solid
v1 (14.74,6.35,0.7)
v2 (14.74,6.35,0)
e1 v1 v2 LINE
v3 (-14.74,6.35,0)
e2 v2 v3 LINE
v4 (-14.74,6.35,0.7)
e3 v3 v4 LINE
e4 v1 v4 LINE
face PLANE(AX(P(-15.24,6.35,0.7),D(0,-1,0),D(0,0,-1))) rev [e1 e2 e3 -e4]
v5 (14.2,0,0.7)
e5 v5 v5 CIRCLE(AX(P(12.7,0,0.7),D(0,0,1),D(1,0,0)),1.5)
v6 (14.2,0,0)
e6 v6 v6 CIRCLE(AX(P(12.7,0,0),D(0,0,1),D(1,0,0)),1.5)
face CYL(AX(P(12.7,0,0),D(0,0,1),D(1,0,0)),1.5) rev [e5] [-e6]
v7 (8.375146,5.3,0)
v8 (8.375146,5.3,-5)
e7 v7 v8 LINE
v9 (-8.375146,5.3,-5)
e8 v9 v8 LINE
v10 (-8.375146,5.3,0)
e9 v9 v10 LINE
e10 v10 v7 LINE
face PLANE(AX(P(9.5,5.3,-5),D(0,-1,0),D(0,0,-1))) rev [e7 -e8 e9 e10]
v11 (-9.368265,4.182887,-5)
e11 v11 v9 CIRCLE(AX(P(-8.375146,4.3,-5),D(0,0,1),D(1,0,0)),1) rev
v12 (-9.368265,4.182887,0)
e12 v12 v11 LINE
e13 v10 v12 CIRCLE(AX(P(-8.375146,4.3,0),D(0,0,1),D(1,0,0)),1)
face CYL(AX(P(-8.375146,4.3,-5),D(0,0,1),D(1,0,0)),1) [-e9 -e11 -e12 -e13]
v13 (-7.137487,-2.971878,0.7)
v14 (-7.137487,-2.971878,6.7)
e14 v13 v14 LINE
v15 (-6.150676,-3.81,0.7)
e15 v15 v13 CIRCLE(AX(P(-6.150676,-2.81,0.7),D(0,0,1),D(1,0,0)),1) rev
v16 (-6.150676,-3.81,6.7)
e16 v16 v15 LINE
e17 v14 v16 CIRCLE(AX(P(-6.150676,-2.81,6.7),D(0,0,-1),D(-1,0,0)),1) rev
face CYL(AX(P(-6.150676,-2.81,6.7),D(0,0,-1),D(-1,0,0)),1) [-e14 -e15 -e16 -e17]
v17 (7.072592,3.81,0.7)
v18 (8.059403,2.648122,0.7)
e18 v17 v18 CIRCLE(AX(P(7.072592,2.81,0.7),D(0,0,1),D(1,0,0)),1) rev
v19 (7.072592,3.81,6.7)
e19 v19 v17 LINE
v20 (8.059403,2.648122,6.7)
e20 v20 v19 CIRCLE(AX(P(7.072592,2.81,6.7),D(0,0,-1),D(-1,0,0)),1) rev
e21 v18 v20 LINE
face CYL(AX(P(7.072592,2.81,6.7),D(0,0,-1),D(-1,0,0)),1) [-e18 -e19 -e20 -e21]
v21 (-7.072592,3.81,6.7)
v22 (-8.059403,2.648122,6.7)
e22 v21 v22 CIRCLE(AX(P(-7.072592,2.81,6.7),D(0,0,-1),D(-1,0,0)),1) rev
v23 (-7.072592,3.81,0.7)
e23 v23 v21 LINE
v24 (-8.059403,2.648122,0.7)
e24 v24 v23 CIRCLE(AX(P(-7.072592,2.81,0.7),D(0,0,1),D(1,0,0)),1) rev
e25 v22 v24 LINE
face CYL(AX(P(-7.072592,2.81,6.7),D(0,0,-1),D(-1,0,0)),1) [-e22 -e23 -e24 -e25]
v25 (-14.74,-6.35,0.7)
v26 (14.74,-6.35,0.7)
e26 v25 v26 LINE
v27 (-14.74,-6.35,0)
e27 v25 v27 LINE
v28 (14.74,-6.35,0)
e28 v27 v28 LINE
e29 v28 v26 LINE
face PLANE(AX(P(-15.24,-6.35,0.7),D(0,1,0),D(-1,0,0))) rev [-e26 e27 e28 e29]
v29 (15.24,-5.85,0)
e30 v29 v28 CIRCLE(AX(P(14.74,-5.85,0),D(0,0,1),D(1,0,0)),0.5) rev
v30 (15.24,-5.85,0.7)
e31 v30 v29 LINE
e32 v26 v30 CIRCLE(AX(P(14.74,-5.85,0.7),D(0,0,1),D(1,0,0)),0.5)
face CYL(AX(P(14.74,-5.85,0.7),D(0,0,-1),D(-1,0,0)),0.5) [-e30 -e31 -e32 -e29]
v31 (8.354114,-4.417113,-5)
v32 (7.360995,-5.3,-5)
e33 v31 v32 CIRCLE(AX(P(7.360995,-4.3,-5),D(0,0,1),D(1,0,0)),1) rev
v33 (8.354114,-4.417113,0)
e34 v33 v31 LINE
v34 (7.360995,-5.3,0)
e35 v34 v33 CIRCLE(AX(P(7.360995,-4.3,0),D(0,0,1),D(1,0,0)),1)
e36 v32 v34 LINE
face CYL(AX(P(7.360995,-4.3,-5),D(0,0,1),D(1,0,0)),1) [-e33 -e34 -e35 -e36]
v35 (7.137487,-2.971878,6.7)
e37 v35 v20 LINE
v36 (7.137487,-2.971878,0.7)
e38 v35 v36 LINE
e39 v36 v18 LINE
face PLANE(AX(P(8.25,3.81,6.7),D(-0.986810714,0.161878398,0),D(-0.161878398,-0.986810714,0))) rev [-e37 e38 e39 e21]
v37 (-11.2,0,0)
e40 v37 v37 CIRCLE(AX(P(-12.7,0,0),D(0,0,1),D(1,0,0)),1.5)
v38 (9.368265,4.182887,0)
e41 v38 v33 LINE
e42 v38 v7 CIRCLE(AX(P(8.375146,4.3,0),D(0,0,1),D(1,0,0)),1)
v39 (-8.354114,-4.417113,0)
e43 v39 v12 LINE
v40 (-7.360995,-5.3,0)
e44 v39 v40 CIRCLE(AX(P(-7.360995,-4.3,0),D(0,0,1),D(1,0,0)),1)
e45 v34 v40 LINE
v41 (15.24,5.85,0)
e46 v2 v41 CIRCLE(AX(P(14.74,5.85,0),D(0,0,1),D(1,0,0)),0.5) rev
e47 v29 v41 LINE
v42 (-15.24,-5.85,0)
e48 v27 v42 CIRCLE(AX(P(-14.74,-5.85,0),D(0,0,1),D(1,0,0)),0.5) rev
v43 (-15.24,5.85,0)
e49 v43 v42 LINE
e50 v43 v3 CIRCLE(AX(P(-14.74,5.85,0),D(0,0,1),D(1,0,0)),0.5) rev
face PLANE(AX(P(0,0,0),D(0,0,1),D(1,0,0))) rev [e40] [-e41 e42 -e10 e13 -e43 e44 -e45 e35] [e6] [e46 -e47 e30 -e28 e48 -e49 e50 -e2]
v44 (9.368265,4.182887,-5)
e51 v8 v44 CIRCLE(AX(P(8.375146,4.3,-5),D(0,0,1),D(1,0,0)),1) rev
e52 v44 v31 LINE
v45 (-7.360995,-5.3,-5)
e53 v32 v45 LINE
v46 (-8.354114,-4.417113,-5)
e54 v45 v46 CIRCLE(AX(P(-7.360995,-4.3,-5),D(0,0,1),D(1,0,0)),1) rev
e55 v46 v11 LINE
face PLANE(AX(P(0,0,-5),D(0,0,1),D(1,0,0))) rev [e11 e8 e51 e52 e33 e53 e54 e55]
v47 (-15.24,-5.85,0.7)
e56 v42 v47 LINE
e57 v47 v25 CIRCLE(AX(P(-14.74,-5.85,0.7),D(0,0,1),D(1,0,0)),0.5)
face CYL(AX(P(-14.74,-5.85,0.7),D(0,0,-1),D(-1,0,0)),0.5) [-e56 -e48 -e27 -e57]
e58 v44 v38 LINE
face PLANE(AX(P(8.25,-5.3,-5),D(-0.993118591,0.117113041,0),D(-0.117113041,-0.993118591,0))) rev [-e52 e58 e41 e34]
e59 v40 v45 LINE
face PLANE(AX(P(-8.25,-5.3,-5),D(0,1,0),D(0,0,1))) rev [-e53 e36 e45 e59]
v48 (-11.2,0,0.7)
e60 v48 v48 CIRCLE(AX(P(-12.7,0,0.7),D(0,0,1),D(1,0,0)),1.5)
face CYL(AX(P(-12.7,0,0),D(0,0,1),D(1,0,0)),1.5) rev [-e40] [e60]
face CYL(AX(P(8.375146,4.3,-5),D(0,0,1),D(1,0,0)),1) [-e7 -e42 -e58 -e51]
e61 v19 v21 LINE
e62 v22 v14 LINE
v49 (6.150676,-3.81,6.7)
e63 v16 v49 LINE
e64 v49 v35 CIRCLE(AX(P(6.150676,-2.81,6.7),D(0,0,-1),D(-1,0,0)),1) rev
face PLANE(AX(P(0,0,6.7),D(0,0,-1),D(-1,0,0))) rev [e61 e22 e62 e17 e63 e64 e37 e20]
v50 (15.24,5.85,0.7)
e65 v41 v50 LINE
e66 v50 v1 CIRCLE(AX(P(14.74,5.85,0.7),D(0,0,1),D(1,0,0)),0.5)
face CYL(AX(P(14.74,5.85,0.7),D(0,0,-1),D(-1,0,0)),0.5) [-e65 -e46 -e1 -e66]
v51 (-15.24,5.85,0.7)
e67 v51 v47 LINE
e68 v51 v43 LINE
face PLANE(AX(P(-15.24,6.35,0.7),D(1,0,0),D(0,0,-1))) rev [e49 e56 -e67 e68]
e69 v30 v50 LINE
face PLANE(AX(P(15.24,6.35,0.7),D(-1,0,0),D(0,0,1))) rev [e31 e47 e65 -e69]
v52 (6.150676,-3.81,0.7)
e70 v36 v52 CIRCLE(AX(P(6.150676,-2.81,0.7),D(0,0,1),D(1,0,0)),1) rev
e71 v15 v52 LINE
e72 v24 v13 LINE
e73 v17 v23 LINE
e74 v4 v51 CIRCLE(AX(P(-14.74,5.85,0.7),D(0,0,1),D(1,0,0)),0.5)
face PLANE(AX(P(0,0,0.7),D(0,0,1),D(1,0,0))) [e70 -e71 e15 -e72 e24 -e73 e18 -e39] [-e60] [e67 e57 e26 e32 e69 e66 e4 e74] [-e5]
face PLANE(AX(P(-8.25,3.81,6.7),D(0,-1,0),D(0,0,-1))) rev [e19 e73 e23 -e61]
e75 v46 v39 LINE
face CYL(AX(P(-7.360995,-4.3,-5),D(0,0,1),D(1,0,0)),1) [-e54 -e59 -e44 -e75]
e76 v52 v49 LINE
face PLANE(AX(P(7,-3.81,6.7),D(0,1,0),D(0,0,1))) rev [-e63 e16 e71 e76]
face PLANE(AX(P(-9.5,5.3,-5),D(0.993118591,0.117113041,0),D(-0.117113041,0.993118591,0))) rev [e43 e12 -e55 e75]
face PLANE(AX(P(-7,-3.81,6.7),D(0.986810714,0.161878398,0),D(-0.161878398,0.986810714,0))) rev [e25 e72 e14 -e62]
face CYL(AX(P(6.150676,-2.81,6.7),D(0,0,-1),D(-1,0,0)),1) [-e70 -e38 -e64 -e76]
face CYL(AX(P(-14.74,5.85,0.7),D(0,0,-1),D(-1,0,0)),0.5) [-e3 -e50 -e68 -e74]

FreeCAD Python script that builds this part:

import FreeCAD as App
import Part
import Sketcher

V = App.Vector
Q = App.Units.Quantity


def edges_at(feature, points):
    """Names of the edges that pass closest to the given points."""
    edges = feature.Shape.Edges
    near = lambda p: min(range(len(edges)), key=lambda i: edges[i].distToShape(Part.Vertex(*p))[0])
    return sorted({f"Edge{near(p) + 1}" for p in points})


def add_polygon(sketch, points):
    """Adds a closed chain of lines whose ends are joined by coincident constraints."""
    first, n = sketch.GeometryCount, len(points)
    for a, b in zip(points, points[1:] + points[:1]):
        sketch.addGeometry(Part.LineSegment(App.Vector(*a, 0), App.Vector(*b, 0)), False)
    for i in range(n):
        sketch.addConstraint(Sketcher.Constraint("Coincident", first + i, 2, first + (i + 1) % n, 1))

doc = App.newDocument("Part")
body = doc.addObject("PartDesign::Body", "Body")

sketch1 = body.newObject("Sketcher::SketchObject", "Sketch")
sketch1.AttachmentSupport = (doc.getObject("XY_Plane"), [""])
sketch1.MapMode = "FlatFace"
add_polygon(sketch1, [(-15.24, 6.35), (-15.24, -6.35), (15.24, -6.35), (15.24, 6.35)])
sketch1.addConstraint(Sketcher.Constraint("Vertical", 0))
sketch1.addConstraint(Sketcher.Constraint("Horizontal", 1))
sketch1.addConstraint(Sketcher.Constraint("Vertical", 2))
sketch1.addConstraint(Sketcher.Constraint("Horizontal", 3))
sketch1.addConstraint(Sketcher.Constraint("Symmetric", 0, 2, 2, 2, -1, 1))
sketch1.addConstraint(Sketcher.Constraint("DistanceY", 0, 2, 0, 1, Q("12.7 mm")))
sketch1.addConstraint(Sketcher.Constraint("DistanceX", 1, 1, 1, 2, Q("30.48 mm")))
pad1 = body.newObject("PartDesign::Pad", "Pad")
pad1.Profile = sketch1
pad1.Length = 0.7
doc.recompute()

fillet = body.newObject("PartDesign::Fillet", "Fillet")
fillet.Base = (pad1, edges_at(pad1, [
    (-15.24, 6.35, 0.35),
    (15.24, 6.35, 0.35),
    (15.24, -6.35, 0.35),
    (-15.24, -6.35, 0.35),
]))
fillet.Radius = 0.5

sketch2 = body.newObject("Sketcher::SketchObject", "Sketch001")
sketch2.AttachmentSupport = (doc.getObject("XY_Plane"), [""])
sketch2.MapMode = "FlatFace"
sketch2.AttachmentOffset = App.Placement(V(0, 0, 0.7), App.Rotation())
sketch2.addGeometry(Part.Circle(V(-12.7, 0, 0), V(0, 0, 1), 1.5), False)
sketch2.addGeometry(Part.Circle(V(12.7, 0, 0), V(0, 0, 1), 1.5), False)
sketch2.addConstraint(Sketcher.Constraint("Equal", 0, 1))
sketch2.addConstraint(Sketcher.Constraint("Symmetric", 0, 3, 1, 3, -1, 1))
sketch2.addConstraint(Sketcher.Constraint("PointOnObject", 0, 3, -1))
sketch2.addConstraint(Sketcher.Constraint("Diameter", 0, Q("3 mm")))
sketch2.addConstraint(Sketcher.Constraint("DistanceX", 0, 3, -1, 1, Q("12.7 mm")))
pocket1 = body.newObject("PartDesign::Pocket", "Pocket")
pocket1.Profile = sketch2
pocket1.Type = "ThroughAll"

sketch3 = body.newObject("Sketcher::SketchObject", "Sketch002")
sketch3.AttachmentSupport = (doc.getObject("XY_Plane"), [""])
sketch3.MapMode = "FlatFace"
sketch3.AttachmentOffset = App.Placement(V(0, 0, 0.7), App.Rotation())
add_polygon(sketch3, [(8.25, 3.81), (-8.25, 3.81), (-7, -3.81), (7, -3.81)])
sketch3.addConstraint(Sketcher.Constraint("Horizontal", 0))
sketch3.addConstraint(Sketcher.Constraint("Horizontal", 2))
sketch3.addConstraint(Sketcher.Constraint("Equal", 1, 3))
sketch3.addConstraint(Sketcher.Constraint("DistanceX", 2, 1, 2, 2, Q("14 mm")))
sketch3.addConstraint(Sketcher.Constraint("DistanceX", 0, 2, 0, 1, Q("16.5 mm")))
sketch3.addConstraint(Sketcher.Constraint("DistanceX", 1, 2, -1, 1, Q("7 mm")))
sketch3.addConstraint(Sketcher.Constraint("DistanceY", -1, 1, 0, 2, Q("3.81 mm")))
sketch3.addConstraint(Sketcher.Constraint("DistanceY", 1, 2, -1, 1, Q("3.81 mm")))
pad2 = body.newObject("PartDesign::Pad", "Pad001")
pad2.Profile = sketch3
pad2.Length = 6
doc.recompute()

fillet2 = body.newObject("PartDesign::Fillet", "Fillet001")
fillet2.Base = (pad2, edges_at(pad2, [
    (-8.25, 3.81, 3.7),
    (-7, -3.81, 3.7),
    (7, -3.81, 3.7),
    (8.25, 3.81, 3.7),
]))
fillet2.Radius = 1

sketch4 = body.newObject("Sketcher::SketchObject", "Sketch003")
sketch4.AttachmentSupport = (doc.getObject("XY_Plane"), [""])
sketch4.MapMode = "FlatFace"
add_polygon(sketch4, [(-9.5, 5.3), (9.5, 5.3), (8.25, -5.3), (-8.25, -5.3)])
sketch4.addConstraint(Sketcher.Constraint("Horizontal", 0))
sketch4.addConstraint(Sketcher.Constraint("Horizontal", 2))
sketch4.addConstraint(Sketcher.Constraint("Equal", 1, 3))
sketch4.addConstraint(Sketcher.Constraint("DistanceX", 0, 1, 0, 2, Q("19 mm")))
sketch4.addConstraint(Sketcher.Constraint("DistanceX", 2, 2, 2, 1, Q("16.5 mm")))
sketch4.addConstraint(Sketcher.Constraint("DistanceX", -1, 1, 0, 2, Q("9.5 mm")))
sketch4.addConstraint(Sketcher.Constraint("DistanceY", -1, 1, 0, 2, Q("5.3 mm")))
sketch4.addConstraint(Sketcher.Constraint("DistanceY", 1, 2, -1, 1, Q("5.3 mm")))
pad3 = body.newObject("PartDesign::Pad", "Pad002")
pad3.Profile = sketch4
pad3.Length = 5
pad3.Reversed = True
doc.recompute()

fillet3 = body.newObject("PartDesign::Fillet", "Fillet002")
fillet3.Base = (pad3, edges_at(pad3, [
    (9.5, 5.3, -2.5),
    (8.25, -5.3, -2.5),
    (-8.25, -5.3, -2.5),
    (-9.5, 5.3, -2.5),
]))
fillet3.Radius = 1

doc.recompute()
